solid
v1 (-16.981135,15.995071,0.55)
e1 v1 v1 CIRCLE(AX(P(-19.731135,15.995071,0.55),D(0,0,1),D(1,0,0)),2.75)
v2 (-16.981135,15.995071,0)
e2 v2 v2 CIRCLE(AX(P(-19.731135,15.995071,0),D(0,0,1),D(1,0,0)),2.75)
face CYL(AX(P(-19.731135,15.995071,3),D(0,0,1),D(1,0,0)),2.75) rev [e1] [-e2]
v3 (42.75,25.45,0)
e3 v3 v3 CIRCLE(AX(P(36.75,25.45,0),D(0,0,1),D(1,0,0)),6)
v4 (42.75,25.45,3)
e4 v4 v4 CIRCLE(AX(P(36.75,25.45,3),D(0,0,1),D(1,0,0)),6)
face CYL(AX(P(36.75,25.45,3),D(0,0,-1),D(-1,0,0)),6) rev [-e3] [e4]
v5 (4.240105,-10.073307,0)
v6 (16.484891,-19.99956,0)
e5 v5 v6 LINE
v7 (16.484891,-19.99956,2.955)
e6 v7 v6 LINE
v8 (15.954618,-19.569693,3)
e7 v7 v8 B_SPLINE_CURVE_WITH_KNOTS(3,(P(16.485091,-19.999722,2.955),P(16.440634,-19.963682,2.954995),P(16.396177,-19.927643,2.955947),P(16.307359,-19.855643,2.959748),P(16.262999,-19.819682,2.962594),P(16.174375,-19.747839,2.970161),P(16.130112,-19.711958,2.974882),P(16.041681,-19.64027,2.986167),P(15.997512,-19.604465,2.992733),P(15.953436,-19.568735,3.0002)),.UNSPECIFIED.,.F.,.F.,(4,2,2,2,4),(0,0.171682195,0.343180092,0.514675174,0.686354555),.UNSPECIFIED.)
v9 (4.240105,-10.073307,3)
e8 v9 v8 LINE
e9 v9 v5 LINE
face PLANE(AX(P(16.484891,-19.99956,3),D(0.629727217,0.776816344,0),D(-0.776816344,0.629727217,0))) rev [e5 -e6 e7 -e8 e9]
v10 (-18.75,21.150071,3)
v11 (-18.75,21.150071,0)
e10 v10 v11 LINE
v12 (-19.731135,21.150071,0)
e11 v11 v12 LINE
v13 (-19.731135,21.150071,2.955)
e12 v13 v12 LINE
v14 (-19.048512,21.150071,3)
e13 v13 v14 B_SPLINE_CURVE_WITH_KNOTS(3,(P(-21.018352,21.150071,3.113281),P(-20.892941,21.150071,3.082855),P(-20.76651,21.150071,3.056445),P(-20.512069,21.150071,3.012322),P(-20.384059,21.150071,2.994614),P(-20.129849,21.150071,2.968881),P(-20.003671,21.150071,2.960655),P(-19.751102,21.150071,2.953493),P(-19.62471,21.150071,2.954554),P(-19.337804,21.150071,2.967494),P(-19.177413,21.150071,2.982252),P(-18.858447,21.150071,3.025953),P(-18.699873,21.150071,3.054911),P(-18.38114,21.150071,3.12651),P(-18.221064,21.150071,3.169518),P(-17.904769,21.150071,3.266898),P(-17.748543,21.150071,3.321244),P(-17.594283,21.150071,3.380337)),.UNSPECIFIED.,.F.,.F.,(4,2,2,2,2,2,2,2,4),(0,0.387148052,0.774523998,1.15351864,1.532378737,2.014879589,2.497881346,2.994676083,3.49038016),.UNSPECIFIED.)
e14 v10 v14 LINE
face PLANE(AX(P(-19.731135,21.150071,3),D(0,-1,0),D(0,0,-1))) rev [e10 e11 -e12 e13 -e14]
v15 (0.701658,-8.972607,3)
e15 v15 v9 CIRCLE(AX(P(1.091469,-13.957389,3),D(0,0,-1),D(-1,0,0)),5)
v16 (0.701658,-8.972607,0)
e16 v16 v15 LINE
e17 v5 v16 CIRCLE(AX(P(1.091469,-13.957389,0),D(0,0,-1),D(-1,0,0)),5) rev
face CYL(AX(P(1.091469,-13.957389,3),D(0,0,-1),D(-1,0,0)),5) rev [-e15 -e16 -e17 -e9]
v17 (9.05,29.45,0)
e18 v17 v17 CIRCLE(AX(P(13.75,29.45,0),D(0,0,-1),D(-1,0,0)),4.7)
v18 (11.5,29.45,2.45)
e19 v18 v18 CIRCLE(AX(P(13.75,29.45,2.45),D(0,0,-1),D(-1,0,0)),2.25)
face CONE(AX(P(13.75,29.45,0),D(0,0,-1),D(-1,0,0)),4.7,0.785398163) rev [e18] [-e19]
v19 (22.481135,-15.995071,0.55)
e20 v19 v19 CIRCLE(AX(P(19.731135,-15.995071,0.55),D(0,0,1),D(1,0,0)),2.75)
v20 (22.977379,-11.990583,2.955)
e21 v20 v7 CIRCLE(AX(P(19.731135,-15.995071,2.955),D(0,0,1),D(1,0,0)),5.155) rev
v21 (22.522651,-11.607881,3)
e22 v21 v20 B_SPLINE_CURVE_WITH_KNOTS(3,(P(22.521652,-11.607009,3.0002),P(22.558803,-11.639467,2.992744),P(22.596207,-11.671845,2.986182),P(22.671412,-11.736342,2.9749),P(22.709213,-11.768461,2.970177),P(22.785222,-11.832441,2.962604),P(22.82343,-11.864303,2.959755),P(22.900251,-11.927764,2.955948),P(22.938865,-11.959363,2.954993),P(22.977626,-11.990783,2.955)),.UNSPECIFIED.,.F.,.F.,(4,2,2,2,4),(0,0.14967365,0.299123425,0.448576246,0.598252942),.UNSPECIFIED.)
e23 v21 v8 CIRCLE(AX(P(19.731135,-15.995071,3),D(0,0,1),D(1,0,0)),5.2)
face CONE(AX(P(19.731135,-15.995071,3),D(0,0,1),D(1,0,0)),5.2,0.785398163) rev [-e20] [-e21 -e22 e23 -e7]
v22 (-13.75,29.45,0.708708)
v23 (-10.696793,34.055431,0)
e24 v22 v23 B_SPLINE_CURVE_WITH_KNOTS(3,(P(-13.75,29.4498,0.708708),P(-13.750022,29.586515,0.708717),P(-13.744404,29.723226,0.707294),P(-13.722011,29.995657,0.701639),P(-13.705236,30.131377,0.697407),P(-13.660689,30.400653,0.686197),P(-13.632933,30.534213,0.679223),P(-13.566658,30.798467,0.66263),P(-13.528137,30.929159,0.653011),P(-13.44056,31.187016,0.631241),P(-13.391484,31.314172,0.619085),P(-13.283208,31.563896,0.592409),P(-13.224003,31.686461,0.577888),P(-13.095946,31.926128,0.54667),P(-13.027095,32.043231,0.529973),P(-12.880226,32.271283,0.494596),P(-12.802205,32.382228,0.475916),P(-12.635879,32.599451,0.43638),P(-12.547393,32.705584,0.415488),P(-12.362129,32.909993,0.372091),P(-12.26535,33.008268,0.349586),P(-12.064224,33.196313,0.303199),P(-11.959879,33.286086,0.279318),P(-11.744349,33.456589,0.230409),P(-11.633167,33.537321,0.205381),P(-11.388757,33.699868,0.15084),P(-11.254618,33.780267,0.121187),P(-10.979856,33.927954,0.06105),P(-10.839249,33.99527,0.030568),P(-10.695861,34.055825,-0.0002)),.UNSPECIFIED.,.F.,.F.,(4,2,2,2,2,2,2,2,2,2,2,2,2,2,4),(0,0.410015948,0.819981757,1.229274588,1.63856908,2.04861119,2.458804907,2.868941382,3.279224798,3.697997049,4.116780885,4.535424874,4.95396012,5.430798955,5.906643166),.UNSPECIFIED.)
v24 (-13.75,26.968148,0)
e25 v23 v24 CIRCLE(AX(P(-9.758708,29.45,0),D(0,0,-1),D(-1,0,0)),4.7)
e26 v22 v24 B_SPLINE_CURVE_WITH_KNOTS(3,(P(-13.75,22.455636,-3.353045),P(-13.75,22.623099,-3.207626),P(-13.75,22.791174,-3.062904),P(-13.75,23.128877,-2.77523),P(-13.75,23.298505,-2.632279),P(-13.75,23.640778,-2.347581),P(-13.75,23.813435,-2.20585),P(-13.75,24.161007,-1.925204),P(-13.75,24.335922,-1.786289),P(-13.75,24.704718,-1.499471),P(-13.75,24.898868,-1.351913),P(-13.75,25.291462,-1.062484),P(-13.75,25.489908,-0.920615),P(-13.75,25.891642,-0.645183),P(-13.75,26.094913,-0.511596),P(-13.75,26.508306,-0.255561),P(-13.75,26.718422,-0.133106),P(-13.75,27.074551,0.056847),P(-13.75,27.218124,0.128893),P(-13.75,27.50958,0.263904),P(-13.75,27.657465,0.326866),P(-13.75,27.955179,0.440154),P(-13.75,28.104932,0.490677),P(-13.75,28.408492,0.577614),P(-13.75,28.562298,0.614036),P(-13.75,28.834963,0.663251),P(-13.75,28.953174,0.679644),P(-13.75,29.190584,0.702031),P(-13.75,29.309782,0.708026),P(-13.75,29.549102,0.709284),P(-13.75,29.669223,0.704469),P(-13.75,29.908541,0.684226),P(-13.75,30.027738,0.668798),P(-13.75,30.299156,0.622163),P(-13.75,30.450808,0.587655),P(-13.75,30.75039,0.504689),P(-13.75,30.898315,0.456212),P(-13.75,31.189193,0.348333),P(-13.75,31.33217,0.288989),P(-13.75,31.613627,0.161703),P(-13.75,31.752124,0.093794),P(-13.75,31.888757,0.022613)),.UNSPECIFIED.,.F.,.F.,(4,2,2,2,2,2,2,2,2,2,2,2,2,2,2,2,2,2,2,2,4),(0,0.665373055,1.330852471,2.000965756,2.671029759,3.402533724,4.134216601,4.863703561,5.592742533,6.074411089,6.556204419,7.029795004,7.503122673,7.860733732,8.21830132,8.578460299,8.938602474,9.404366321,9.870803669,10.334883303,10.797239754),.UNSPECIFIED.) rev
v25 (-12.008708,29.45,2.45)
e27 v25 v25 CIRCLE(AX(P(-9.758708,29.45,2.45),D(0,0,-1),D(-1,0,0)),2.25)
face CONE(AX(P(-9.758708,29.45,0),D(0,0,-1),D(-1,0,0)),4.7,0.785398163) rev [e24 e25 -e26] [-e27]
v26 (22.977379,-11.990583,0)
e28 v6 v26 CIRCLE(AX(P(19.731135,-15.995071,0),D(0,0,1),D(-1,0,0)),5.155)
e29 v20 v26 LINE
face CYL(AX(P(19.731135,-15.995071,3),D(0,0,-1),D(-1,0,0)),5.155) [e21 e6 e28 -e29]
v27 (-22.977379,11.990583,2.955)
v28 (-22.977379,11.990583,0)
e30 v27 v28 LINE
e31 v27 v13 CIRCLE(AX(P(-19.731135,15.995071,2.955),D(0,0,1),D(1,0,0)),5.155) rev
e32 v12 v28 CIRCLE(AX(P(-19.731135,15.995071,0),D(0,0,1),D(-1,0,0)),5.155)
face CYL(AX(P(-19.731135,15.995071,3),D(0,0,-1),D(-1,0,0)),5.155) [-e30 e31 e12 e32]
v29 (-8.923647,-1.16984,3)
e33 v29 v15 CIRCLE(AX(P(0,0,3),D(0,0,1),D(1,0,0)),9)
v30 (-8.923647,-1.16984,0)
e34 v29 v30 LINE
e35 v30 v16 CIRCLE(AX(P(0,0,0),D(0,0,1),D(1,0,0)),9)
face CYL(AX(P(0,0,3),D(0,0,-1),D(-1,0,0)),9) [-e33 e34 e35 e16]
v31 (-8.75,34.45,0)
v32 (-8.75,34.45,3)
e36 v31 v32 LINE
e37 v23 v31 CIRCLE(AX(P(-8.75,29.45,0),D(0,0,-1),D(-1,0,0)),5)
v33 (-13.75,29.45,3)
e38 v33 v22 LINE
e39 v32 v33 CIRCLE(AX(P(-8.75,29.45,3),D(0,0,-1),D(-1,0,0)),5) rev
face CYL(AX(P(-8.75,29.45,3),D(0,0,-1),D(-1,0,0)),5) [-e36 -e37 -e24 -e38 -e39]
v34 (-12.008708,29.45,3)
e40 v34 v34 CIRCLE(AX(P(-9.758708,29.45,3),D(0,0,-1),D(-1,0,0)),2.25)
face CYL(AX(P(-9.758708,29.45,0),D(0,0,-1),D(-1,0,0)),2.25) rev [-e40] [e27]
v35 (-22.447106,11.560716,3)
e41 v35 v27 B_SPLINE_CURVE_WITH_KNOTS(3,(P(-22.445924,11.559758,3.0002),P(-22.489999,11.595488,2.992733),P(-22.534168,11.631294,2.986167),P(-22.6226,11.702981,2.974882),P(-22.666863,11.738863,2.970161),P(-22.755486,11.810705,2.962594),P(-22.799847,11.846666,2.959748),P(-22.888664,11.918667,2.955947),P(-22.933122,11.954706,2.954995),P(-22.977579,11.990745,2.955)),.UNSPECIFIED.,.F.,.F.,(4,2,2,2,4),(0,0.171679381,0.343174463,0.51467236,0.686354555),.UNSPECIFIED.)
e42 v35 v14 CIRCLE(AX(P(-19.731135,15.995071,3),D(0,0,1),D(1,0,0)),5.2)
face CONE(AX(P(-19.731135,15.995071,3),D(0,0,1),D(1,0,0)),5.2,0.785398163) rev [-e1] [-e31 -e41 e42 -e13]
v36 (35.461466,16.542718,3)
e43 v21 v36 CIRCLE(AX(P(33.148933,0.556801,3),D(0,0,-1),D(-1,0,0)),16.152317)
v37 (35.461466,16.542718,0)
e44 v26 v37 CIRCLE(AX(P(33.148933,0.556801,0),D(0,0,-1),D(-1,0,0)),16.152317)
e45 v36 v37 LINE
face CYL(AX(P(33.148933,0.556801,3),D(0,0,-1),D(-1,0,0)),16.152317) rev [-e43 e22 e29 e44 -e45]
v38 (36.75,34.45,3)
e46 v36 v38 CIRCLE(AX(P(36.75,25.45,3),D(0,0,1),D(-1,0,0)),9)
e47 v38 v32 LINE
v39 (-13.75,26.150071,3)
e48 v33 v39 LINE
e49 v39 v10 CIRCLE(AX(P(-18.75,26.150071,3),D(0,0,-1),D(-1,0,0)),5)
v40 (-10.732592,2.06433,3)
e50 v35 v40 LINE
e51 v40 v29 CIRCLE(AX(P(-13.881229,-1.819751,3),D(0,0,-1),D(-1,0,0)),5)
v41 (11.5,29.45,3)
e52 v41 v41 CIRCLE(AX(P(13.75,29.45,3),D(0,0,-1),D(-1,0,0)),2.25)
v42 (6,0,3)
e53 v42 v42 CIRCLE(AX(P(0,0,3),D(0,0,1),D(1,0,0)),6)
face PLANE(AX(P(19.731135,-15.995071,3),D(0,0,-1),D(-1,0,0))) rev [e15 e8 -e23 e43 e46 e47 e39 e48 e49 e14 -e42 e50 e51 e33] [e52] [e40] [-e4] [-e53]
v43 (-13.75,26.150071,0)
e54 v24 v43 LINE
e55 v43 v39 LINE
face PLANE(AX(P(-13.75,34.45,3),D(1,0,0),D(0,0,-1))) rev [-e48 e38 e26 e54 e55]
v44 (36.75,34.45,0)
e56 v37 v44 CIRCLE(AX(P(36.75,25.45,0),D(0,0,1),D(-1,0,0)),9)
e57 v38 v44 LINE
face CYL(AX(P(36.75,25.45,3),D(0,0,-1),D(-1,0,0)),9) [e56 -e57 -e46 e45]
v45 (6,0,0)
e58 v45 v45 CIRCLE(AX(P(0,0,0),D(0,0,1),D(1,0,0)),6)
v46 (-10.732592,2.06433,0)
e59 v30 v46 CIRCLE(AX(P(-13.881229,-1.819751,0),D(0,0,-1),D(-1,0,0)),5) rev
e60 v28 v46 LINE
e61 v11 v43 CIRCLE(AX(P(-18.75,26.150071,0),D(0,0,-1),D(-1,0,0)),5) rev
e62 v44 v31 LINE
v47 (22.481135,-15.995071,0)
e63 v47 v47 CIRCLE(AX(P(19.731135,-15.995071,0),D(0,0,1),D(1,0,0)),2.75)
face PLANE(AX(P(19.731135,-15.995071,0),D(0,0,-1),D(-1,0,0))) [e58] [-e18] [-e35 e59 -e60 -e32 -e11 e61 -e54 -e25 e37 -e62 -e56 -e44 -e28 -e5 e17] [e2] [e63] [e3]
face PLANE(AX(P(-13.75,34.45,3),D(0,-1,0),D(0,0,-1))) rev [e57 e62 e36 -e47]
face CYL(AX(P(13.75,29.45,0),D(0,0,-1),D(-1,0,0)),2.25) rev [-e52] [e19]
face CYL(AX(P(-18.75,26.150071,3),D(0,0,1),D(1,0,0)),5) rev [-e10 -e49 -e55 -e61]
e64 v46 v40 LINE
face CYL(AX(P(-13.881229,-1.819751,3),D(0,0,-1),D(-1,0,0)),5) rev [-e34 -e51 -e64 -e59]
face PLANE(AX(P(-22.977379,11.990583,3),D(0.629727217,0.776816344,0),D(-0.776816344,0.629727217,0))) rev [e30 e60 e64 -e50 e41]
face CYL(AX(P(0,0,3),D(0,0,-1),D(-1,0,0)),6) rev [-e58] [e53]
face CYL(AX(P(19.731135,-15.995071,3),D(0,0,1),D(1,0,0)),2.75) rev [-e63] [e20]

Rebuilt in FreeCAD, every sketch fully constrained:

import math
import FreeCAD as App
import Part
import Sketcher
from FreeCAD import Vector
Q = App.Units.Quantity


def edges_at(feature, points):
    """Names of the edges that pass closest to the given points."""
    edges = feature.Shape.Edges
    near = lambda p: min(range(len(edges)), key=lambda i: edges[i].distToShape(Part.Vertex(*p))[0])
    return sorted({f"Edge{near(p) + 1}" for p in points})

doc = App.newDocument("Part")
body = doc.addObject("PartDesign::Body", "Body")

# Sketch on XY plane
sketch1 = doc.addObject("Sketcher::SketchObject", "Sketch")
body.addObject(sketch1)
sketch1.AttachmentSupport = (doc.XY_Plane, [""])
sketch1.MapMode = "FlatFace"
sketch1.addGeometry([
    Part.LineSegment(Vector(2.5, -8.7, 0), Vector(16.5, -20, 0)),  # 0
    Part.ArcOfCircle(Part.Circle(Vector(19.7, -16, 0), Vector(0, 0, 1), 5.2), math.radians(-129), math.radians(51)),  # 1
    Part.ArcOfCircle(Part.Circle(Vector(33.1, 0.6, 0), Vector(0, 0, 1), 16.2), math.radians(82), math.radians(231)),  # 2
    Part.ArcOfCircle(Part.Circle(Vector(36.8, 25.4, 0), Vector(0, 0, 1), 9), math.radians(-98), math.radians(90)),  # 3
    Part.LineSegment(Vector(36.8, 34.5, 0), Vector(-13.8, 34.5, 0)),  # 4
    Part.LineSegment(Vector(-13.8, 34.5, 0), Vector(-13.8, 21.2, 0)),  # 5
    Part.LineSegment(Vector(-13.8, 21.2, 0), Vector(-19.7, 21.2, 0)),  # 6
    Part.ArcOfCircle(Part.Circle(Vector(-19.7, 16, 0), Vector(0, 0, 1), 5.2), math.radians(90), math.radians(231)),  # 7
    Part.LineSegment(Vector(-23, 12, 0), Vector(-9, 0.6, 0)),  # 8
    Part.ArcOfCircle(Part.Circle(Vector(0, 0, 0), Vector(0, 0, 1), 9), math.radians(176), math.radians(286)),  # 9
    Part.Circle(Vector(19.7, -16, 0), Vector(0, 0, 1), 2),  # 10
    Part.Circle(Vector(0, 0, 0), Vector(0, 0, 1), 6),  # 11
    Part.Circle(Vector(36.8, 25.4, 0), Vector(0, 0, 1), 6),  # 12
    Part.Circle(Vector(-19.7, 16, 0), Vector(0, 0, 1), 2),  # 13
], False)
sketch1.addConstraint([
    Sketcher.Constraint("Tangent", 0, 2, 1, 1),
    Sketcher.Constraint("Tangent", 1, 2, 2, 2),
    Sketcher.Constraint("Tangent", 2, 1, 3, 1),
    Sketcher.Constraint("Tangent", 3, 2, 4, 1),
    Sketcher.Constraint("Coincident", 4, 2, 5, 1),
    Sketcher.Constraint("Coincident", 5, 2, 6, 1),
    Sketcher.Constraint("Tangent", 6, 2, 7, 1),
    Sketcher.Constraint("Tangent", 7, 2, 8, 1),
    Sketcher.Constraint("Coincident", 8, 2, 9, 1),
    Sketcher.Constraint("Coincident", 9, 2, 0, 1),
    Sketcher.Constraint("Horizontal", 4),
    Sketcher.Constraint("Vertical", 5),
    Sketcher.Constraint("Horizontal", 6),
    Sketcher.Constraint("Coincident", 9, 3, -1, 1),
    Sketcher.Constraint("Coincident", 11, 3, -1, 1),
    Sketcher.Constraint("Coincident", 10, 3, 1, 3),
    Sketcher.Constraint("Coincident", 12, 3, 3, 3),
    Sketcher.Constraint("Coincident", 13, 3, 7, 3),
    Sketcher.Constraint("Equal", 1, 7),
    Sketcher.Constraint("Equal", 3, 9),
    Sketcher.Constraint("Equal", 11, 12),
    Sketcher.Constraint("Equal", 10, 13),
    Sketcher.Constraint("Symmetric", 1, 3, 7, 3, -1, 1),
    Sketcher.Constraint("Parallel", 0, 8),
    Sketcher.Constraint("Equal", 0, 8),
    Sketcher.Constraint("Diameter", 10, 4.0),
    Sketcher.Constraint("Diameter", 11, 12.0),
    Sketcher.Constraint("Radius", 3, 9.0),
    Sketcher.Constraint("DistanceX", 4, 2, 4, 1, 50.5),
    Sketcher.Constraint("Radius", 1, 5.155),
    Sketcher.Constraint("Angle", 0, Q("-39.03 deg")),
    Sketcher.Constraint("DistanceX", -1, 1, 3, 3, 36.75),
    Sketcher.Constraint("DistanceY", -1, 1, 3, 3, 25.45),
    Sketcher.Constraint("Radius", 2, 16.152317),
    Sketcher.Constraint("DistanceY", 5, 2, 5, 1, 13.299929),
])
pad1 = doc.addObject("PartDesign::Pad", "Pad")
body.addObject(pad1)
pad1.Profile = sketch1
pad1.Length = 3
doc.recompute()

fillet = doc.addObject("PartDesign::Fillet", "Fillet")
body.addObject(fillet)
fillet.Base = (pad1, edges_at(pad1, [
    (2.485, -8.65, 1.5),
    (-8.977, 0.641, 1.5),
    (-13.75, 21.15, 1.5),
    (-13.75, 34.45, 1.5),
]))
fillet.Radius = 5

# Sketch on YZ plane
sketch2 = doc.addObject("Sketcher::SketchObject", "Sketch001")
body.addObject(sketch2)
sketch2.AttachmentSupport = (doc.YZ_Plane, [""])
sketch2.MapMode = "FlatFace"
sketch2.AttachmentOffset = App.Placement(Vector(0, 0, 13.75), App.Rotation())
sketch2.addGeometry([
    Part.LineSegment(Vector(29.4, 3, 0), Vector(29.4, 0, 0)),  # 0
    Part.LineSegment(Vector(29.4, 0, 0), Vector(34.1, 0, 0)),  # 1
    Part.LineSegment(Vector(34.1, 0, 0), Vector(31.7, 2.5, 0)),  # 2
    Part.LineSegment(Vector(31.7, 2.5, 0), Vector(31.7, 3, 0)),  # 3
    Part.LineSegment(Vector(31.7, 3, 0), Vector(29.4, 3, 0)),  # 4
], False)
sketch2.addGeometry(Part.LineSegment(Vector(29.4, 0, 0), Vector(29.4, 3, 0)), True)  # axis
sketch2.addConstraint([
    Sketcher.Constraint("Coincident", 0, 2, 1, 1),
    Sketcher.Constraint("Coincident", 1, 2, 2, 1),
    Sketcher.Constraint("Coincident", 2, 2, 3, 1),
    Sketcher.Constraint("Coincident", 3, 2, 4, 1),
    Sketcher.Constraint("Coincident", 4, 2, 0, 1),
    Sketcher.Constraint("Vertical", 0),
    Sketcher.Constraint("Horizontal", 1),
    Sketcher.Constraint("Vertical", 3),
    Sketcher.Constraint("Horizontal", 4),
    Sketcher.Constraint("Vertical", 5),
    Sketcher.Constraint("Coincident", 5, 1, 0, 2),
    Sketcher.Constraint("PointOnObject", 0, 2, -1),
    Sketcher.Constraint("Horizontal", 3, 2, 5, 2),
    Sketcher.Constraint("DistanceY", 0, 2, 0, 1, 3.0),
    Sketcher.Constraint("Angle", 2, Q("135 deg")),
    Sketcher.Constraint("DistanceX", 1, 1, 1, 2, 4.7),
    Sketcher.Constraint("DistanceX", 4, 2, 4, 1, 2.25),
    Sketcher.Constraint("DistanceX", -1, 1, 2, 2, 31.7),
])
groove = doc.addObject("PartDesign::Groove", "Groove")
body.addObject(groove)
groove.Profile = sketch2
groove.ReferenceAxis = (sketch2, ["Axis0"])
groove.Angle = 360
doc.recompute()

linearpattern = doc.addObject("PartDesign::LinearPattern", "LinearPattern")
body.addObject(linearpattern)
linearpattern.Originals = [groove]
linearpattern.Direction = (doc.X_Axis, [""])
linearpattern.Mode = "offset"
linearpattern.Offset = 23.508708
linearpattern.Occurrences = 2
linearpattern.Reversed = True
body.Tip = linearpattern

# Sketch on YZ plane
sketch3 = doc.addObject("Sketcher::SketchObject", "Sketch002")
body.addObject(sketch3)
sketch3.AttachmentSupport = (doc.YZ_Plane, [""])
sketch3.MapMode = "FlatFace"
sketch3.AttachmentOffset = App.Placement(Vector(0, 0, -19.731135), App.Rotation())
sketch3.addGeometry([
    Part.LineSegment(Vector(16, 0, 0), Vector(16, 3, 0)),  # 0
    Part.LineSegment(Vector(16, 3, 0), Vector(10.8, 3, 0)),  # 1
    Part.LineSegment(Vector(10.8, 3, 0), Vector(13.2, 0.6, 0)),  # 2
    Part.LineSegment(Vector(13.2, 0.6, 0), Vector(13.2, 0, 0)),  # 3
    Part.LineSegment(Vector(13.2, 0, 0), Vector(16, 0, 0)),  # 4
], False)
sketch3.addGeometry(Part.LineSegment(Vector(16, 3, 0), Vector(16, 0, 0)), True)  # axis
sketch3.addConstraint([
    Sketcher.Constraint("Coincident", 0, 2, 1, 1),
    Sketcher.Constraint("Coincident", 1, 2, 2, 1),
    Sketcher.Constraint("Coincident", 2, 2, 3, 1),
    Sketcher.Constraint("Coincident", 3, 2, 4, 1),
    Sketcher.Constraint("Coincident", 4, 2, 0, 1),
    Sketcher.Constraint("Vertical", 0),
    Sketcher.Constraint("Horizontal", 1),
    Sketcher.Constraint("Vertical", 3),
    Sketcher.Constraint("Horizontal", 4),
    Sketcher.Constraint("Vertical", 5),
    Sketcher.Constraint("Coincident", 5, 1, 0, 2),
    Sketcher.Constraint("PointOnObject", 3, 2, -1),
    Sketcher.Constraint("PointOnObject", 5, 2, -1),
    Sketcher.Constraint("DistanceY", 0, 1, 0, 2, 3.0),
    Sketcher.Constraint("Angle", 2, Q("-45 deg")),
    Sketcher.Constraint("DistanceX", 1, 2, 1, 1, 5.2),
    Sketcher.Constraint("DistanceX", 4, 1, 4, 2, 2.75),
    Sketcher.Constraint("DistanceX", -1, 1, 0, 2, 15.995071),
])
groove2 = doc.addObject("PartDesign::Groove", "Groove001")
body.addObject(groove2)
groove2.Profile = sketch3
groove2.ReferenceAxis = (sketch3, ["Axis0"])
groove2.Angle = 360
doc.recompute()

datumline = doc.addObject("PartDesign::Line", "DatumLine")
body.addObject(datumline)
datumline.Placement = App.Placement(Vector(0, 0, 0), App.Rotation(Vector(0, 0, 1), Vector(0.776816344, -0.629727217, 0)))
linearpattern2 = doc.addObject("PartDesign::LinearPattern", "LinearPattern001")
body.addObject(linearpattern2)
linearpattern2.Originals = [groove2]
linearpattern2.Direction = (datumline, [""])
linearpattern2.Mode = "offset"
linearpattern2.Offset = 50.8
linearpattern2.Occurrences = 2
body.Tip = linearpattern2

doc.recompute()
